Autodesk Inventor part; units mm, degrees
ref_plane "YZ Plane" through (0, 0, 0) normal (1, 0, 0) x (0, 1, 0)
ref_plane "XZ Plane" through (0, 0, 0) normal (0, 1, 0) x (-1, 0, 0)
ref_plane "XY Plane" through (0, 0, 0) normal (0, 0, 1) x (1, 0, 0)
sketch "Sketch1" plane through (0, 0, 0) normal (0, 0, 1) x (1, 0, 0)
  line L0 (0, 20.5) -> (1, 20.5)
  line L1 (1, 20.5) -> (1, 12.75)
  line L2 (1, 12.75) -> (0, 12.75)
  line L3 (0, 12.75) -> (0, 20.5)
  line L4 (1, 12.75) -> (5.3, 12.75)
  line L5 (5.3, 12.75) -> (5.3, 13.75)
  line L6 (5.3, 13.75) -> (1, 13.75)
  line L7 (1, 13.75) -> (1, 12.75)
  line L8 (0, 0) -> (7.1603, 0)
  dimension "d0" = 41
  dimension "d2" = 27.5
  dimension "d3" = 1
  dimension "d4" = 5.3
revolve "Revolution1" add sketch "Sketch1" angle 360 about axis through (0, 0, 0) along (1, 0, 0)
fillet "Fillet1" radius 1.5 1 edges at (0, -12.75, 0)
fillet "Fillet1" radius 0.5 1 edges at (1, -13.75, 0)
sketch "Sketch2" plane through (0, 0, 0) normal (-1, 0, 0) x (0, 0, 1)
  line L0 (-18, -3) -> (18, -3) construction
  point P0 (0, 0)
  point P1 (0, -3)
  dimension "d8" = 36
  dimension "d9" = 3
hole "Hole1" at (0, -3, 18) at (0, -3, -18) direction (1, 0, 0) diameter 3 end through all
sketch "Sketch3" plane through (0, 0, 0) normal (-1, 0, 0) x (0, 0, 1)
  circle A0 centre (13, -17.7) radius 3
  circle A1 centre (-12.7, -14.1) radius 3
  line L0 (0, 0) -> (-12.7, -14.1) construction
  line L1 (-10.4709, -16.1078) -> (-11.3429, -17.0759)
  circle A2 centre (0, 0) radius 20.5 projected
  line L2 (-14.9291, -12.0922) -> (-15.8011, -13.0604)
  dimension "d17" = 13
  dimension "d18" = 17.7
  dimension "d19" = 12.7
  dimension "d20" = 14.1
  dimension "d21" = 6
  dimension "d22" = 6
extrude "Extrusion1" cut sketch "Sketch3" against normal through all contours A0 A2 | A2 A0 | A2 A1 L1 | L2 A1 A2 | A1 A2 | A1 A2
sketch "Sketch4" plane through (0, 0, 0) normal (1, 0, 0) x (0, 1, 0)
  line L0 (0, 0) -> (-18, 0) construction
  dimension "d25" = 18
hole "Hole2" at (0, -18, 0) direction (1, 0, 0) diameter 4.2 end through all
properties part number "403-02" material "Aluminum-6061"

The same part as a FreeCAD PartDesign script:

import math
import FreeCAD as App
import Part
import Sketcher
from FreeCAD import Vector
Q = App.Units.Quantity


def edges_at(feature, points):
    """Names of the edges that pass closest to the given points."""
    edges = feature.Shape.Edges
    near = lambda p: min(range(len(edges)), key=lambda i: edges[i].distToShape(Part.Vertex(*p))[0])
    return sorted({f"Edge{near(p) + 1}" for p in points})

doc = App.newDocument("Part")
body = doc.addObject("PartDesign::Body", "Body")

sketch1 = body.newObject("Sketcher::SketchObject", "Sketch")
sketch1.AttachmentSupport = (doc.getObject("XY_Plane"), [""])
sketch1.MapMode = "FlatFace"
sketch1.addGeometry(Part.LineSegment(Vector(1, 20.5, 0), Vector(0, 20.5, 0)), False)
sketch1.addGeometry(Part.LineSegment(Vector(0, 20.5, 0), Vector(0, 12.8, 0)), False)
sketch1.addGeometry(Part.LineSegment(Vector(0, 12.8, 0), Vector(5.3, 12.8, 0)), False)
sketch1.addGeometry(Part.LineSegment(Vector(5.3, 12.8, 0), Vector(5.3, 13.8, 0)), False)
sketch1.addGeometry(Part.LineSegment(Vector(5.3, 13.8, 0), Vector(1, 13.8, 0)), False)
sketch1.addGeometry(Part.LineSegment(Vector(1, 13.8, 0), Vector(1, 20.5, 0)), False)
sketch1.addConstraint(Sketcher.Constraint("Coincident", 0, 2, 1, 1))
sketch1.addConstraint(Sketcher.Constraint("Coincident", 1, 2, 2, 1))
sketch1.addConstraint(Sketcher.Constraint("Coincident", 2, 2, 3, 1))
sketch1.addConstraint(Sketcher.Constraint("Coincident", 3, 2, 4, 1))
sketch1.addConstraint(Sketcher.Constraint("Coincident", 4, 2, 5, 1))
sketch1.addConstraint(Sketcher.Constraint("Coincident", 5, 2, 0, 1))
sketch1.addConstraint(Sketcher.Constraint("Horizontal", 0))
sketch1.addConstraint(Sketcher.Constraint("Vertical", 1))
sketch1.addConstraint(Sketcher.Constraint("Horizontal", 2))
sketch1.addConstraint(Sketcher.Constraint("Vertical", 3))
sketch1.addConstraint(Sketcher.Constraint("Horizontal", 4))
sketch1.addConstraint(Sketcher.Constraint("Vertical", 5))
sketch1.addConstraint(Sketcher.Constraint("PointOnObject", 0, 2, -2))
sketch1.addConstraint(Sketcher.Constraint("Equal", 0, 3))
sketch1.addConstraint(Sketcher.Constraint("DistanceX", 0, 2, 0, 1, Q("1 mm")))
sketch1.addConstraint(Sketcher.Constraint("DistanceX", 2, 1, 2, 2, Q("5.3 mm")))
sketch1.addConstraint(Sketcher.Constraint("DistanceY", 1, 2, 1, 1, Q("7.75 mm")))
sketch1.addConstraint(Sketcher.Constraint("DistanceY", -1, 1, 0, 2, Q("20.5 mm")))
revolution = body.newObject("PartDesign::Revolution", "Revolution")
revolution.Profile = sketch1
revolution.ReferenceAxis = (sketch1, ["H_Axis"])
revolution.Angle = 360
doc.recompute()

fillet = body.newObject("PartDesign::Fillet", "Fillet")
fillet.Base = (revolution, edges_at(revolution, [(0, -12.75, 0)]))
fillet.Radius = 1.5
doc.recompute()

fillet2 = body.newObject("PartDesign::Fillet", "Fillet001")
fillet2.Base = (fillet, edges_at(fillet, [(1, -13.75, 0)]))
fillet2.Radius = 0.5

sketch2 = body.newObject("Sketcher::SketchObject", "Sketch001")
sketch2.AttachmentSupport = (doc.getObject("YZ_Plane"), [""])
sketch2.MapMode = "FlatFace"
sketch2.addGeometry(Part.Circle(Vector(-3, 18, 0), Vector(0, 0, 1), 1.5), False)
sketch2.addGeometry(Part.Circle(Vector(-3, -18, 0), Vector(0, 0, 1), 1.5), False)
sketch2.addConstraint(Sketcher.Constraint("Equal", 0, 1))
sketch2.addConstraint(Sketcher.Constraint("Symmetric", 0, 3, 1, 3, -1))
sketch2.addConstraint(Sketcher.Constraint("Diameter", 0, Q("3 mm")))
sketch2.addConstraint(Sketcher.Constraint("DistanceX", 0, 3, -1, 1, Q("3 mm")))
sketch2.addConstraint(Sketcher.Constraint("DistanceY", -1, 1, 0, 3, Q("18 mm")))
doc.recompute()
hole = body.newObject("PartDesign::Hole", "Hole")
hole.Profile = sketch2
hole.ThreadType = "None"
hole.Diameter = 3
hole.DepthType = "ThroughAll"
hole.Reversed = True

sketch3 = body.newObject("Sketcher::SketchObject", "Sketch002")
sketch3.AttachmentSupport = (doc.getObject("YZ_Plane"), [""])
sketch3.MapMode = "FlatFace"
sketch3.addGeometry(Part.Circle(Vector(-17.7, 13, 0), Vector(0, 0, 1), 3), False)
sketch3.addGeometry(Part.ArcOfCircle(Part.Circle(Vector(0, 0, 0), Vector(0, 0, 1), 20.5), math.radians(-146.41), math.radians(-145.5)), False)
sketch3.addGeometry(Part.LineSegment(Vector(-17.08, -11.34, 0), Vector(-16.11, -10.47, 0)), False)
sketch3.addGeometry(Part.ArcOfCircle(Part.Circle(Vector(-14.1, -12.7, 0), Vector(0, 0, 1), 3), math.radians(-48), math.radians(132)), False)
sketch3.addGeometry(Part.LineSegment(Vector(-12.09, -14.93, 0), Vector(-13.06, -15.8, 0)), False)
sketch3.addGeometry(Part.ArcOfCircle(Part.Circle(Vector(0, 0, 0), Vector(0, 0, 1), 20.5), math.radians(-130.48), math.radians(-129.58)), False)
sketch3.addGeometry(Part.ArcOfCircle(Part.Circle(Vector(-14.1, -12.7, 0), Vector(0, 0, 1), 3), math.radians(159), math.radians(285)), False)
sketch3.addConstraint(Sketcher.Constraint("Coincident", 1, 1, 2, 1))
sketch3.addConstraint(Sketcher.Constraint("Tangent", 2, 2, 3, 2))
sketch3.addConstraint(Sketcher.Constraint("Tangent", 3, 1, 4, 1))
sketch3.addConstraint(Sketcher.Constraint("Coincident", 4, 2, 5, 2))
sketch3.addConstraint(Sketcher.Constraint("Coincident", 5, 1, 6, 2))
sketch3.addConstraint(Sketcher.Constraint("Coincident", 6, 1, 1, 2))
sketch3.addConstraint(Sketcher.Constraint("Coincident", 1, 3, -1, 1))
sketch3.addConstraint(Sketcher.Constraint("Coincident", 5, 3, -1, 1))
sketch3.addConstraint(Sketcher.Constraint("Coincident", 6, 3, 3, 3))
sketch3.addConstraint(Sketcher.Constraint("Equal", 0, 3))
sketch3.addConstraint(Sketcher.Constraint("Equal", 1, 5))
sketch3.addConstraint(Sketcher.Constraint("Equal", 3, 6))
sketch3.addConstraint(Sketcher.Constraint("Parallel", 2, 4))
sketch3.addConstraint(Sketcher.Constraint("Equal", 2, 4))
sketch3.addConstraint(Sketcher.Constraint("Diameter", 0, Q("6 mm")))
sketch3.addConstraint(Sketcher.Constraint("DistanceY", -1, 1, 0, 3, Q("13 mm")))
sketch3.addConstraint(Sketcher.Constraint("DistanceX", 0, 3, -1, 1, Q("17.7 mm")))
sketch3.addConstraint(Sketcher.Constraint("DistanceX", 3, 3, -1, 1, Q("14.1 mm")))
sketch3.addConstraint(Sketcher.Constraint("DistanceY", 3, 3, -1, 1, Q("12.7 mm")))
sketch3.addConstraint(Sketcher.Constraint("Radius", 1, Q("20.5 mm")))
pocket1 = body.newObject("PartDesign::Pocket", "Pocket")
pocket1.Profile = sketch3
pocket1.Type = "ThroughAll"
pocket1.Reversed = True

sketch4 = body.newObject("Sketcher::SketchObject", "Sketch003")
sketch4.AttachmentSupport = (doc.getObject("YZ_Plane"), [""])
sketch4.MapMode = "FlatFace"
sketch4.addGeometry(Part.Circle(Vector(-18, 0, 0), Vector(0, 0, 1), 2.1), False)
sketch4.addConstraint(Sketcher.Constraint("PointOnObject", 0, 3, -1))
sketch4.addConstraint(Sketcher.Constraint("Diameter", 0, Q("4.2 mm")))
sketch4.addConstraint(Sketcher.Constraint("DistanceX", 0, 3, -1, 1, Q("18 mm")))
doc.recompute()
hole2 = body.newObject("PartDesign::Hole", "Hole001")
hole2.Profile = sketch4
hole2.ThreadType = "None"
hole2.Diameter = 4.2
hole2.DepthType = "ThroughAll"
hole2.Reversed = True

doc.recompute()
